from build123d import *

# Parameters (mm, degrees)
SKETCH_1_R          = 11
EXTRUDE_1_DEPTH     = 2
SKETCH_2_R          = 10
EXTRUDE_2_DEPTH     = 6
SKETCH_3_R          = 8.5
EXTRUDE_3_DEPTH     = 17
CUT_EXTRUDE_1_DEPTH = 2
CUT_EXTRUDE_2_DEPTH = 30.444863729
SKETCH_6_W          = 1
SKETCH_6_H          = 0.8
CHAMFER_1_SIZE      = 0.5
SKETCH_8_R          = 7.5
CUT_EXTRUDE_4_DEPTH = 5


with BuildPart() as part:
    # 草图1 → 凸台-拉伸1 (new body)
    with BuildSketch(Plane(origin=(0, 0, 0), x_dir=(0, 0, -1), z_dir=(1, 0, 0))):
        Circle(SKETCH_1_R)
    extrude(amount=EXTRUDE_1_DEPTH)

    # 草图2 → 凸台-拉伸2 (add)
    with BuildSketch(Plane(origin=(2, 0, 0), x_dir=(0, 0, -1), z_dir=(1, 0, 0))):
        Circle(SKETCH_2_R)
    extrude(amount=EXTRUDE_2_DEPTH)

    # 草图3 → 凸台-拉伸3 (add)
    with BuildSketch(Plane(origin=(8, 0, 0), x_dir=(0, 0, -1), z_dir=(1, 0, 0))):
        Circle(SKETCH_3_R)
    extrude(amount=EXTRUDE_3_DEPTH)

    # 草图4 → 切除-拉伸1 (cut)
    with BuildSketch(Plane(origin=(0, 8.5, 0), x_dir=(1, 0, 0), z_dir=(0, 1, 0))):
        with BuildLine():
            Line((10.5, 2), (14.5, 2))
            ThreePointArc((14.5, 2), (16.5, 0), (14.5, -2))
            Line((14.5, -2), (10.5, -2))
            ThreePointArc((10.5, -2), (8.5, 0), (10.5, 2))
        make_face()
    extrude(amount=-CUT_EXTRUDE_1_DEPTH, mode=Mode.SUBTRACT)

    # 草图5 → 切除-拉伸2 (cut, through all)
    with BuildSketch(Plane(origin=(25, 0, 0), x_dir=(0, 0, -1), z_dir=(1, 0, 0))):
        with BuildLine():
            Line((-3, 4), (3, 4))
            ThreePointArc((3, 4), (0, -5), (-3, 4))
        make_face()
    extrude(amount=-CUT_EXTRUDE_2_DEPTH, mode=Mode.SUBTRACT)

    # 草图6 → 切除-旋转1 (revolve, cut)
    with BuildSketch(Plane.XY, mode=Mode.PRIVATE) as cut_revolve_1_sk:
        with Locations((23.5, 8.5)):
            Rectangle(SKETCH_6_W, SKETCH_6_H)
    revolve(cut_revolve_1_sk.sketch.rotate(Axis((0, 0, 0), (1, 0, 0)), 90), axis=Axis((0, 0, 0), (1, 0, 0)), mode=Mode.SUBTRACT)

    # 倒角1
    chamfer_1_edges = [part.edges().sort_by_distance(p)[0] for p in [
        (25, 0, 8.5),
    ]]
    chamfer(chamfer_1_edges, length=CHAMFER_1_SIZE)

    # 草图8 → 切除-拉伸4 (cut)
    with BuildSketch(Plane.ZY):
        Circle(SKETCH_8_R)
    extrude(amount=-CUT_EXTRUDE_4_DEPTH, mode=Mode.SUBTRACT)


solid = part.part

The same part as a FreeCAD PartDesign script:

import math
import FreeCAD as App
import Part
import Sketcher

V = App.Vector
Q = App.Units.Quantity


def edges_at(feature, points):
    """Names of the edges that pass closest to the given points."""
    edges = feature.Shape.Edges
    near = lambda p: min(range(len(edges)), key=lambda i: edges[i].distToShape(Part.Vertex(*p))[0])
    return sorted({f"Edge{near(p) + 1}" for p in points})


def add_polygon(sketch, points):
    """Adds a closed chain of lines whose ends are joined by coincident constraints."""
    first, n = sketch.GeometryCount, len(points)
    for a, b in zip(points, points[1:] + points[:1]):
        sketch.addGeometry(Part.LineSegment(App.Vector(*a, 0), App.Vector(*b, 0)), False)
    for i in range(n):
        sketch.addConstraint(Sketcher.Constraint("Coincident", first + i, 2, first + (i + 1) % n, 1))

doc = App.newDocument("Part")
body = doc.addObject("PartDesign::Body", "Body")

sketch1 = doc.addObject("Sketcher::SketchObject", "Sketch")
body.addObject(sketch1)
sketch1.AttachmentSupport = (doc.YZ_Plane, [""])
sketch1.MapMode = "FlatFace"
sketch1.addGeometry(Part.Circle(V(0, 0, 0), V(0, 0, 1), 11), False)
sketch1.addConstraint([
    Sketcher.Constraint("Coincident", 0, 3, -1, 1),
    Sketcher.Constraint("Diameter", 0, Q("22 mm")),
])
pad1 = doc.addObject("PartDesign::Pad", "Pad")
body.addObject(pad1)
pad1.Profile = sketch1
pad1.Length = 2

sketch2 = doc.addObject("Sketcher::SketchObject", "Sketch001")
body.addObject(sketch2)
sketch2.AttachmentSupport = (doc.YZ_Plane, [""])
sketch2.MapMode = "FlatFace"
sketch2.AttachmentOffset = App.Placement(V(0, 0, 2), App.Rotation())
sketch2.addGeometry(Part.Circle(V(0, 0, 0), V(0, 0, 1), 10), False)
sketch2.addConstraint([
    Sketcher.Constraint("Coincident", 0, 3, -1, 1),
    Sketcher.Constraint("Diameter", 0, Q("20 mm")),
])
pad2 = doc.addObject("PartDesign::Pad", "Pad001")
body.addObject(pad2)
pad2.Profile = sketch2
pad2.Length = 6

sketch3 = doc.addObject("Sketcher::SketchObject", "Sketch002")
body.addObject(sketch3)
sketch3.AttachmentSupport = (doc.YZ_Plane, [""])
sketch3.MapMode = "FlatFace"
sketch3.AttachmentOffset = App.Placement(V(0, 0, 8), App.Rotation())
sketch3.addGeometry(Part.Circle(V(0, 0, 0), V(0, 0, 1), 8.5), False)
sketch3.addConstraint([
    Sketcher.Constraint("Coincident", 0, 3, -1, 1),
    Sketcher.Constraint("Diameter", 0, Q("17 mm")),
])
pad3 = doc.addObject("PartDesign::Pad", "Pad002")
body.addObject(pad3)
pad3.Profile = sketch3
pad3.Length = 17

sketch4 = doc.addObject("Sketcher::SketchObject", "Sketch003")
body.addObject(sketch4)
sketch4.AttachmentSupport = (doc.XZ_Plane, [""])
sketch4.MapMode = "FlatFace"
sketch4.AttachmentOffset = App.Placement(V(0, 0, -8.5), App.Rotation())
sketch4.addGeometry([
    Part.LineSegment(V(14.5, -2, 0), V(10.5, -2, 0)),
    Part.ArcOfCircle(Part.Circle(V(10.5, 0, 0), V(0, 0, 1), 2), math.radians(90), math.radians(270)),
    Part.LineSegment(V(10.5, 2, 0), V(14.5, 2, 0)),
    Part.ArcOfCircle(Part.Circle(V(14.5, 0, 0), V(0, 0, 1), 2), math.radians(-90), math.radians(90)),
], False)
sketch4.addConstraint([
    Sketcher.Constraint("Tangent", 0, 2, 1, 2),
    Sketcher.Constraint("Tangent", 1, 1, 2, 1),
    Sketcher.Constraint("Tangent", 2, 2, 3, 2),
    Sketcher.Constraint("Tangent", 3, 1, 0, 1),
    Sketcher.Constraint("Horizontal", 0),
    Sketcher.Constraint("Horizontal", 2),
    Sketcher.Constraint("PointOnObject", 1, 3, -1),
    Sketcher.Constraint("Radius", 1, Q("2 mm")),
    Sketcher.Constraint("DistanceX", 0, 2, 0, 1, Q("4 mm")),
    Sketcher.Constraint("DistanceX", -1, 1, 1, 3, Q("10.5 mm")),
])
pocket1 = doc.addObject("PartDesign::Pocket", "Pocket")
body.addObject(pocket1)
pocket1.Profile = sketch4
pocket1.Length = 2
pocket1.Reversed = True

sketch5 = doc.addObject("Sketcher::SketchObject", "Sketch004")
body.addObject(sketch5)
sketch5.AttachmentSupport = (doc.YZ_Plane, [""])
sketch5.MapMode = "FlatFace"
sketch5.AttachmentOffset = App.Placement(V(0, 0, 25), App.Rotation())
sketch5.addGeometry([
    Part.LineSegment(V(4, -3, 0), V(4, 3, 0)),
    Part.ArcOfCircle(Part.Circle(V(0, 0, 0), V(0, 0, 1), 5), math.radians(36.869898), math.radians(323.130102)),
], False)
sketch5.addConstraint([
    Sketcher.Constraint("Coincident", 0, 1, 1, 2),
    Sketcher.Constraint("Coincident", 1, 1, 0, 2),
    Sketcher.Constraint("Vertical", 0),
    Sketcher.Constraint("Coincident", 1, 3, -1, 1),
    Sketcher.Constraint("Radius", 1, Q("5 mm")),
    Sketcher.Constraint("DistanceY", 0, 1, 0, 2, Q("6 mm")),
])
pocket2 = doc.addObject("PartDesign::Pocket", "Pocket001")
body.addObject(pocket2)
pocket2.Profile = sketch5
pocket2.Type = "ThroughAll"

sketch6 = doc.addObject("Sketcher::SketchObject", "Sketch005")
body.addObject(sketch6)
sketch6.AttachmentSupport = (doc.XY_Plane, [""])
sketch6.MapMode = "FlatFace"
add_polygon(sketch6, [(23, 8.9), (23, 8.1), (24, 8.1), (24, 8.9)])
sketch6.addConstraint([
    Sketcher.Constraint("Vertical", 0),
    Sketcher.Constraint("Horizontal", 1),
    Sketcher.Constraint("Vertical", 2),
    Sketcher.Constraint("Horizontal", 3),
    Sketcher.Constraint("DistanceX", 1, 1, 1, 2, Q("1 mm")),
    Sketcher.Constraint("DistanceY", 0, 2, 0, 1, Q("0.8 mm")),
    Sketcher.Constraint("DistanceX", -1, 1, 0, 2, Q("23 mm")),
    Sketcher.Constraint("DistanceY", -1, 1, 0, 2, Q("8.1 mm")),
])
groove = doc.addObject("PartDesign::Groove", "Groove")
body.addObject(groove)
groove.Profile = sketch6
groove.ReferenceAxis = (sketch6, ["H_Axis"])
groove.Angle = 360
doc.recompute()

chamfer = doc.addObject("PartDesign::Chamfer", "Chamfer")
body.addObject(chamfer)
chamfer.Base = (groove, edges_at(groove, [(25, 0, 8.5)]))
chamfer.Size = 0.5

sketch7 = doc.addObject("Sketcher::SketchObject", "Sketch006")
body.addObject(sketch7)
sketch7.AttachmentSupport = (doc.YZ_Plane, [""])
sketch7.MapMode = "FlatFace"
sketch7.addGeometry(Part.Circle(V(0, 0, 0), V(0, 0, 1), 7.5), False)
sketch7.addConstraint([
    Sketcher.Constraint("Coincident", 0, 3, -1, 1),
    Sketcher.Constraint("Diameter", 0, Q("15 mm")),
])
pocket3 = doc.addObject("PartDesign::Pocket", "Pocket002")
body.addObject(pocket3)
pocket3.Profile = sketch7
pocket3.Length = 5
pocket3.Reversed = True

doc.recompute()
